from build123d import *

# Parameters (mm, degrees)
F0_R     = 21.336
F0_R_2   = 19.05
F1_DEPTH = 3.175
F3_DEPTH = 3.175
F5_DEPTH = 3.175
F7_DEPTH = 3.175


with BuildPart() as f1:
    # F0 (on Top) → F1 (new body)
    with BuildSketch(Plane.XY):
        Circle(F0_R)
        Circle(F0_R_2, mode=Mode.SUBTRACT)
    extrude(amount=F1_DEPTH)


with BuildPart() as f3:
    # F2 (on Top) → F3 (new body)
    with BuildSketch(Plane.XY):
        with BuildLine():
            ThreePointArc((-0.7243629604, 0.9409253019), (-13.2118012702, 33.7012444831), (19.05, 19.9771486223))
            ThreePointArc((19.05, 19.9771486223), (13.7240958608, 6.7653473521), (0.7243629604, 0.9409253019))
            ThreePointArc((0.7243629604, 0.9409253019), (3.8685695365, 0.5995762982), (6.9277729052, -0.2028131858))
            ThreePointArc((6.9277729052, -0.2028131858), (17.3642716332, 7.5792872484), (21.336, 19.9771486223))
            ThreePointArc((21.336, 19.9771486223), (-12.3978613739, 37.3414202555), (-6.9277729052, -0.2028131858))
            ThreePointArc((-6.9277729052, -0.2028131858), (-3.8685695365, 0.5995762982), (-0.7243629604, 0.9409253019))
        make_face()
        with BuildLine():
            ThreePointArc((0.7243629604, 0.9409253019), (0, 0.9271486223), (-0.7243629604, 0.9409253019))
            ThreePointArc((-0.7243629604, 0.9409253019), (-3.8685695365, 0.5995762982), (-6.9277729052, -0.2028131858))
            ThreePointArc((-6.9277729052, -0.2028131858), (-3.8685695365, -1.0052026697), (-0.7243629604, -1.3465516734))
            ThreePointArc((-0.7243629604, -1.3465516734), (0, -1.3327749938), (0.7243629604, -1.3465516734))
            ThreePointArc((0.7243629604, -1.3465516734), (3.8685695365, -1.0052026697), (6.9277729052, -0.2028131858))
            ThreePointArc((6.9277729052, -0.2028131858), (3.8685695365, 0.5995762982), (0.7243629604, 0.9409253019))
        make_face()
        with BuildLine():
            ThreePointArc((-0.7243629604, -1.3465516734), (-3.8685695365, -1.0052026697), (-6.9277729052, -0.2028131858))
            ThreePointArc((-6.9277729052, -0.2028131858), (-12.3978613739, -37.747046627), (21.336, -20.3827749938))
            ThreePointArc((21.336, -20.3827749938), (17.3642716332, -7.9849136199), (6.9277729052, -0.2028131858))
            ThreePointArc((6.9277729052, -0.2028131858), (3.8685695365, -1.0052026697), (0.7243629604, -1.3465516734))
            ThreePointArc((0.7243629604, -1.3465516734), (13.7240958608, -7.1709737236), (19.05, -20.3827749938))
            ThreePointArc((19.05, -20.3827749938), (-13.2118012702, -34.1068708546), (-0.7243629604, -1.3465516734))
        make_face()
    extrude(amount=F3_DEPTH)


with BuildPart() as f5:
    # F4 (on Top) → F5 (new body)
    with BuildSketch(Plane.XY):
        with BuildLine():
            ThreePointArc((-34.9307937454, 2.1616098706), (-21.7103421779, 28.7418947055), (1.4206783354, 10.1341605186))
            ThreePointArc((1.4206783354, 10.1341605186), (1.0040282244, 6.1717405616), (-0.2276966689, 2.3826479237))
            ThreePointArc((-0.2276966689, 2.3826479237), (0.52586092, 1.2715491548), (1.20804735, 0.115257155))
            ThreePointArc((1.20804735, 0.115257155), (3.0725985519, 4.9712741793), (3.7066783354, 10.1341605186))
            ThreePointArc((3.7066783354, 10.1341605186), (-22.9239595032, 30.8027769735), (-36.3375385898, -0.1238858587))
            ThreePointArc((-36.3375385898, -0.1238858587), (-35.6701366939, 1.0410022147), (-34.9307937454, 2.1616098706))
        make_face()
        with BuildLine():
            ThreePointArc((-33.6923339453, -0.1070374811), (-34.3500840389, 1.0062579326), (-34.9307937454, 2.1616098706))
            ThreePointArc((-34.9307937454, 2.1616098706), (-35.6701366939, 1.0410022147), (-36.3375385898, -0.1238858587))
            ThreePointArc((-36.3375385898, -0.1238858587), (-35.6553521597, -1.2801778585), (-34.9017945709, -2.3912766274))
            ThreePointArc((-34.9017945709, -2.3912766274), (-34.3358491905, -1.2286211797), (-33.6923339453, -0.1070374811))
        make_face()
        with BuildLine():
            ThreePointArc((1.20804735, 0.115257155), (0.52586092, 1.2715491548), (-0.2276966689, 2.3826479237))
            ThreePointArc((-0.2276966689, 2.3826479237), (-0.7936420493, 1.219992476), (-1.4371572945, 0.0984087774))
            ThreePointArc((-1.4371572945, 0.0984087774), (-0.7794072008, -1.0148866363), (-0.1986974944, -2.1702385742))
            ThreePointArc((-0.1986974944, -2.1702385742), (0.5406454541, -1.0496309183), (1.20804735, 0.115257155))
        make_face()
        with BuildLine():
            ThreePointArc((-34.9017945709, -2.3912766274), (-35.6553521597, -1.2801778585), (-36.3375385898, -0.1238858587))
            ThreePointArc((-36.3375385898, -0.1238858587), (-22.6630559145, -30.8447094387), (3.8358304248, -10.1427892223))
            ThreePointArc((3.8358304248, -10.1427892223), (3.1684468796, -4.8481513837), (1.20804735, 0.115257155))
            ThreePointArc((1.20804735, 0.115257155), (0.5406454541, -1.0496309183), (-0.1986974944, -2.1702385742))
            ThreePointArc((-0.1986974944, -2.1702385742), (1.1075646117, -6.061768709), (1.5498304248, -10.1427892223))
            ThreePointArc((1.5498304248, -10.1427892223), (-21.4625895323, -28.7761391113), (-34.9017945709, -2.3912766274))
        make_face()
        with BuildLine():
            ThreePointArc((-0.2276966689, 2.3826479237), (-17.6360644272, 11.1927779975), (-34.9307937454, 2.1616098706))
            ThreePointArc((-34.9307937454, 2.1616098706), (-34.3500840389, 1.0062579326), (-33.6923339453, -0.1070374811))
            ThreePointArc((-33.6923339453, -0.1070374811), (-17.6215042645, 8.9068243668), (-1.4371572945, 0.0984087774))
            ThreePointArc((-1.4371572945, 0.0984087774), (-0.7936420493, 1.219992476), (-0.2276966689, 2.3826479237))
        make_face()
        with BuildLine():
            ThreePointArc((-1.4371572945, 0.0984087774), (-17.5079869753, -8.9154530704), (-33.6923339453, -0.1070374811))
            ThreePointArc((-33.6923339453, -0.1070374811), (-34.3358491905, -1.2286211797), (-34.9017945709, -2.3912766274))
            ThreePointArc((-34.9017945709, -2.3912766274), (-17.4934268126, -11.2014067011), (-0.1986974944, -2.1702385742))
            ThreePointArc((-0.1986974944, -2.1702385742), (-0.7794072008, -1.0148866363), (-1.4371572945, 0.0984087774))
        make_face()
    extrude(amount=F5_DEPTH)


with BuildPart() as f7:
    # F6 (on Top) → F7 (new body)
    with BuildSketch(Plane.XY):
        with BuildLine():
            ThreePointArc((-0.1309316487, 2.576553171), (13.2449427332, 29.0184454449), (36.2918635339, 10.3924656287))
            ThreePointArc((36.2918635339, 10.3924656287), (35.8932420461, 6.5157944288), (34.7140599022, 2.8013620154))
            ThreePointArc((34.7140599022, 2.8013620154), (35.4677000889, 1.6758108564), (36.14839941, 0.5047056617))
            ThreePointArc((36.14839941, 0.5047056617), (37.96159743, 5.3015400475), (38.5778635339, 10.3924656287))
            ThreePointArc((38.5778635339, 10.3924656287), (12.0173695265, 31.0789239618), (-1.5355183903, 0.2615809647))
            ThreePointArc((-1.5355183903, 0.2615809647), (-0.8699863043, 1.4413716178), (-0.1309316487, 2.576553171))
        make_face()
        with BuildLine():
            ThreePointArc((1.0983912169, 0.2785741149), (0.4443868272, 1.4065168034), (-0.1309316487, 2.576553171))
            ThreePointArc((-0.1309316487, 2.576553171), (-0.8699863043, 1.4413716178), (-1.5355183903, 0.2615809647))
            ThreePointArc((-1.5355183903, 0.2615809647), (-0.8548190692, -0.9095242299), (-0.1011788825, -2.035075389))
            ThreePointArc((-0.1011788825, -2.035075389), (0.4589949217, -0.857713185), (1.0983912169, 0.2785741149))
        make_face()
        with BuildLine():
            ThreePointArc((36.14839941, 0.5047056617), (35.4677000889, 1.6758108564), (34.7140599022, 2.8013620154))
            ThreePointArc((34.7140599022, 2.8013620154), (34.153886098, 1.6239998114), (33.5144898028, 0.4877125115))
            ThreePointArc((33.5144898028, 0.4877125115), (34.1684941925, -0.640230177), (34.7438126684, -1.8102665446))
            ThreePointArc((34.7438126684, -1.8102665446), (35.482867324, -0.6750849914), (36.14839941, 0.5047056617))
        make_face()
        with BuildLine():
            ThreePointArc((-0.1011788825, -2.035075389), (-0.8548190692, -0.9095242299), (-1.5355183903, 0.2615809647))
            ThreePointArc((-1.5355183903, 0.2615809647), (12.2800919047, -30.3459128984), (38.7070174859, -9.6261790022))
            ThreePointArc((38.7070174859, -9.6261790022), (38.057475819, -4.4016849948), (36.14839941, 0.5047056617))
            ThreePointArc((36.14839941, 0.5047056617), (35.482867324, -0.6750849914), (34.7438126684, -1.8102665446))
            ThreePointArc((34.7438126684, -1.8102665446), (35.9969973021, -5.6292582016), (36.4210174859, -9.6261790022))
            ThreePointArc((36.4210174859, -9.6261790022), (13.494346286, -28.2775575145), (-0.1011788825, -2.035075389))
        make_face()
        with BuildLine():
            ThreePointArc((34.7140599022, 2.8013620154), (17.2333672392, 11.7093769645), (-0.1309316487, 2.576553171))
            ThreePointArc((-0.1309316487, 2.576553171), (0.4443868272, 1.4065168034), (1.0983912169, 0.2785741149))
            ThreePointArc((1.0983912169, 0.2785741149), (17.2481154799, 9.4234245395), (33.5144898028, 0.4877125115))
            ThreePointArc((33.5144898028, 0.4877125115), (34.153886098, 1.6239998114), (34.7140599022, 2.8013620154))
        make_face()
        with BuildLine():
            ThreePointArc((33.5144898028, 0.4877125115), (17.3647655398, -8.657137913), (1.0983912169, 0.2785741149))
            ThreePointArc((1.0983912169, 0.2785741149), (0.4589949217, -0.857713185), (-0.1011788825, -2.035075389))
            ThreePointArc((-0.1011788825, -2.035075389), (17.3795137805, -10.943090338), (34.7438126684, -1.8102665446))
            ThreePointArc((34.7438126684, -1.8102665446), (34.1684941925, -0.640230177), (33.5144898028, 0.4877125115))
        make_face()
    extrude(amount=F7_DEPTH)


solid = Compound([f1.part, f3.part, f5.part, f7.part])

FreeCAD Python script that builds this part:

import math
import FreeCAD as App
import Part
import Sketcher
Q = App.Units.Quantity

doc = App.newDocument("Part")
body = doc.addObject("PartDesign::Body", "Body")

# Sketch on XY plane
sketch1 = doc.addObject("Sketcher::SketchObject", "Sketch")
body.addObject(sketch1)
sketch1.AttachmentSupport = (doc.XY_Plane, [""])
sketch1.MapMode = "FlatFace"
sketch1.addGeometry(Part.Circle(App.Vector(0, 0, 0), App.Vector(0, 0, 1), 21), False)
sketch1.addGeometry(Part.Circle(App.Vector(0, 0, 0), App.Vector(0, 0, 1), 19), False)
sketch1.addConstraint(Sketcher.Constraint("Coincident", 0, 3, -1, 1))
sketch1.addConstraint(Sketcher.Constraint("Coincident", 1, 3, -1, 1))
sketch1.addConstraint(Sketcher.Constraint("Diameter", 1, Q("1.5 in")))
sketch1.addConstraint(Sketcher.Constraint("Diameter", 0, Q("1.68 in")))
pad1 = doc.addObject("PartDesign::Pad", "Pad")
body.addObject(pad1)
pad1.Profile = sketch1
pad1.Length = Q("0.125 in")
body2 = doc.addObject("PartDesign::Body", "Body001")

# Sketch on XY plane
sketch2 = doc.addObject("Sketcher::SketchObject", "Sketch001")
body2.addObject(sketch2)
sketch2.AttachmentSupport = (doc.getObject("XY_Plane001"), [""])
sketch2.MapMode = "FlatFace"
sketch2.addGeometry(Part.ArcOfCircle(Part.Circle(App.Vector(0, 20, 0), App.Vector(0, 0, 1), 21.3), math.radians(-71), math.radians(0)), False)
sketch2.addGeometry(Part.ArcOfCircle(Part.Circle(App.Vector(0, 20, 0), App.Vector(0, 0, 1), 21.3), math.radians(0), math.radians(251)), False)
sketch2.addGeometry(Part.ArcOfCircle(Part.Circle(App.Vector(0, -20.4, 0), App.Vector(0, 0, 1), 21.3), math.radians(109), math.radians(360)), False)
sketch2.addGeometry(Part.ArcOfCircle(Part.Circle(App.Vector(0, -20.4, 0), App.Vector(0, 0, 1), 21.3), math.radians(0), math.radians(71)), False)
sketch2.addGeometry(Part.ArcOfCircle(Part.Circle(App.Vector(0, 20, 0), App.Vector(0, 0, 1), 19.1), math.radians(0), math.radians(268)), False)
sketch2.addGeometry(Part.ArcOfCircle(Part.Circle(App.Vector(0, 20, 0), App.Vector(0, 0, 1), 19.1), math.radians(-88), math.radians(0)), False)
sketch2.addGeometry(Part.ArcOfCircle(Part.Circle(App.Vector(0, 20, 0), App.Vector(0, 0, 1), 19.1), math.radians(-92.18), math.radians(-87.82)), False)
sketch2.addGeometry(Part.ArcOfCircle(Part.Circle(App.Vector(0, -20.4, 0), App.Vector(0, 0, 1), 19.1), math.radians(87.82), math.radians(92.18)), False)
sketch2.addGeometry(Part.ArcOfCircle(Part.Circle(App.Vector(0, -20.4, 0), App.Vector(0, 0, 1), 19.1), math.radians(0), math.radians(88)), False)
sketch2.addGeometry(Part.ArcOfCircle(Part.Circle(App.Vector(0, -20.4, 0), App.Vector(0, 0, 1), 19.1), math.radians(92), math.radians(360)), False)
sketch2.addConstraint(Sketcher.Constraint("Tangent", 0, 2, 1, 1))
sketch2.addConstraint(Sketcher.Constraint("Coincident", 1, 2, 2, 1))
sketch2.addConstraint(Sketcher.Constraint("Tangent", 2, 2, 3, 1))
sketch2.addConstraint(Sketcher.Constraint("Coincident", 3, 2, 0, 1))
sketch2.addConstraint(Sketcher.Constraint("Tangent", 4, 1, 5, 2))
sketch2.addConstraint(Sketcher.Constraint("Tangent", 5, 1, 6, 2))
sketch2.addConstraint(Sketcher.Constraint("Tangent", 6, 1, 4, 2))
sketch2.addConstraint(Sketcher.Constraint("Tangent", 7, 1, 8, 2))
sketch2.addConstraint(Sketcher.Constraint("Tangent", 8, 1, 9, 2))
sketch2.addConstraint(Sketcher.Constraint("Tangent", 9, 1, 7, 2))
sketch2.addConstraint(Sketcher.Constraint("Coincident", 4, 3, 0, 3))
sketch2.addConstraint(Sketcher.Constraint("Coincident", 7, 3, 2, 3))
sketch2.addConstraint(Sketcher.Constraint("Equal", 0, 1))
sketch2.addConstraint(Sketcher.Constraint("Equal", 1, 2))
sketch2.addConstraint(Sketcher.Constraint("Equal", 2, 3))
sketch2.addConstraint(Sketcher.Constraint("Equal", 6, 7))
sketch2.addConstraint(Sketcher.Constraint("Symmetric", 1, 2, 3, 2, -2))
sketch2.addConstraint(Sketcher.Constraint("Horizontal", 6, 3, 0, 2))
sketch2.addConstraint(Sketcher.Constraint("Horizontal", 9, 3, 2, 2))
sketch2.addConstraint(Sketcher.Constraint("Horizontal", 0, 2, 4, 1))
sketch2.addConstraint(Sketcher.Constraint("Horizontal", 5, 1, 6, 1))
sketch2.addConstraint(Sketcher.Constraint("Horizontal", 2, 2, 8, 1))
sketch2.addConstraint(Sketcher.Constraint("Horizontal", 7, 1, 9, 1))
sketch2.addConstraint(Sketcher.Constraint("Vertical", 5, 1, 7, 1))
sketch2.addConstraint(Sketcher.Constraint("Radius", 0, Q("0.84 in")))
sketch2.addConstraint(Sketcher.Constraint("Radius", 4, Q("0.75 in")))
sketch2.addConstraint(Sketcher.Constraint("DistanceY", -1, 1, 0, 3, Q("19.977149 mm")))
sketch2.addConstraint(Sketcher.Constraint("DistanceY", 7, 1, -1, 1, Q("1.346552 mm")))
sketch2.addConstraint(Sketcher.Constraint("DistanceY", 2, 3, 1, 2, Q("20.179962 mm")))
pad2 = doc.addObject("PartDesign::Pad", "Pad001")
body2.addObject(pad2)
pad2.Profile = sketch2
pad2.Length = Q("0.125 in")
body3 = doc.addObject("PartDesign::Body", "Body002")

# Sketch on XY plane
sketch3 = doc.addObject("Sketcher::SketchObject", "Sketch002")
body3.addObject(sketch3)
sketch3.AttachmentSupport = (doc.getObject("XY_Plane002"), [""])
sketch3.MapMode = "FlatFace"
sketch3.addGeometry(Part.ArcOfCircle(Part.Circle(App.Vector(-18, 10, 0), App.Vector(0, 0, 1), 21), math.radians(-28), math.radians(0)), False)
sketch3.addGeometry(Part.ArcOfCircle(Part.Circle(App.Vector(-18, 10, 0), App.Vector(0, 0, 1), 21), math.radians(0), math.radians(209)), False)
sketch3.addGeometry(Part.ArcOfCircle(Part.Circle(App.Vector(-18, -10, 0), App.Vector(0, 0, 1), 21), math.radians(152), math.radians(360)), False)
sketch3.addGeometry(Part.ArcOfCircle(Part.Circle(App.Vector(-18, -10, 0), App.Vector(0, 0, 1), 21), math.radians(0), math.radians(29)), False)
sketch3.addGeometry(Part.ArcOfCircle(Part.Circle(App.Vector(-18, 10, 0), App.Vector(0, 0, 1), 19), math.radians(0), math.radians(205)), False)
sketch3.addGeometry(Part.ArcOfCircle(Part.Circle(App.Vector(-18, 10, 0), App.Vector(0, 0, 1), 19), math.radians(-24), math.radians(0)), False)
sketch3.addGeometry(Part.ArcOfCircle(Part.Circle(App.Vector(-18, -10, 0), App.Vector(0, 0, 1), 21), math.radians(36), math.radians(145)), False)
sketch3.addGeometry(Part.ArcOfCircle(Part.Circle(App.Vector(-18, -10, 0), App.Vector(0, 0, 1), 19), math.radians(0), math.radians(25)), False)
sketch3.addGeometry(Part.ArcOfCircle(Part.Circle(App.Vector(-18, -10, 0), App.Vector(0, 0, 1), 19), math.radians(156), math.radians(360)), False)
sketch3.addGeometry(Part.ArcOfCircle(Part.Circle(App.Vector(-18, 10, 0), App.Vector(0, 0, 1), 21), math.radians(-144), math.radians(-35)), False)
sketch3.addGeometry(Part.ArcOfCircle(Part.Circle(App.Vector(-18, -10, 0), App.Vector(0, 0, 1), 19), math.radians(33), math.radians(148)), False)
sketch3.addGeometry(Part.ArcOfCircle(Part.Circle(App.Vector(-18, 10, 0), App.Vector(0, 0, 1), 19), math.radians(-147), math.radians(-32)), False)
sketch3.addConstraint(Sketcher.Constraint("Tangent", 0, 2, 1, 1))
sketch3.addConstraint(Sketcher.Constraint("Coincident", 1, 2, 2, 1))
sketch3.addConstraint(Sketcher.Constraint("Tangent", 2, 2, 3, 1))
sketch3.addConstraint(Sketcher.Constraint("Coincident", 3, 2, 0, 1))
sketch3.addConstraint(Sketcher.Constraint("Tangent", 4, 1, 5, 2))
sketch3.addConstraint(Sketcher.Constraint("Coincident", 5, 1, 6, 1))
sketch3.addConstraint(Sketcher.Constraint("Coincident", 6, 2, 4, 2))
sketch3.addConstraint(Sketcher.Constraint("Tangent", 7, 1, 8, 2))
sketch3.addConstraint(Sketcher.Constraint("Coincident", 8, 1, 9, 1))
sketch3.addConstraint(Sketcher.Constraint("Coincident", 9, 2, 7, 2))
sketch3.addConstraint(Sketcher.Constraint("Coincident", 10, 1, 11, 2))
sketch3.addConstraint(Sketcher.Constraint("Coincident", 11, 1, 10, 2))
sketch3.addConstraint(Sketcher.Constraint("Coincident", 4, 3, 0, 3))
sketch3.addConstraint(Sketcher.Constraint("Coincident", 6, 3, 2, 3))
sketch3.addConstraint(Sketcher.Constraint("Coincident", 7, 3, 2, 3))
sketch3.addConstraint(Sketcher.Constraint("Coincident", 9, 3, 0, 3))
sketch3.addConstraint(Sketcher.Constraint("Coincident", 10, 3, 2, 3))
sketch3.addConstraint(Sketcher.Constraint("Coincident", 11, 3, 0, 3))
sketch3.addConstraint(Sketcher.Constraint("Equal", 0, 1))
sketch3.addConstraint(Sketcher.Constraint("Equal", 1, 2))
sketch3.addConstraint(Sketcher.Constraint("Equal", 2, 3))
sketch3.addConstraint(Sketcher.Constraint("Equal", 4, 5))
sketch3.addConstraint(Sketcher.Constraint("Equal", 3, 6))
sketch3.addConstraint(Sketcher.Constraint("Equal", 5, 7))
sketch3.addConstraint(Sketcher.Constraint("Equal", 7, 8))
sketch3.addConstraint(Sketcher.Constraint("Equal", 6, 9))
sketch3.addConstraint(Sketcher.Constraint("Equal", 8, 10))
sketch3.addConstraint(Sketcher.Constraint("Equal", 10, 11))
sketch3.addConstraint(Sketcher.Constraint("Horizontal", 11, 3, 0, 2))
sketch3.addConstraint(Sketcher.Constraint("Horizontal", 10, 3, 2, 2))
sketch3.addConstraint(Sketcher.Constraint("Horizontal", 0, 2, 4, 1))
sketch3.addConstraint(Sketcher.Constraint("Horizontal", 2, 2, 7, 1))
sketch3.addConstraint(Sketcher.Constraint("Radius", 0, Q("0.84 in")))
sketch3.addConstraint(Sketcher.Constraint("Radius", 4, Q("0.75 in")))
sketch3.addConstraint(Sketcher.Constraint("DistanceX", 6, 2, 8, 1, Q("0.028999 mm")))
sketch3.addConstraint(Sketcher.Constraint("DistanceY", 9, 2, 4, 1, Q("12.304399 mm")))
sketch3.addConstraint(Sketcher.Constraint("DistanceX", 0, 3, -1, 1, Q("17.629322 mm")))
sketch3.addConstraint(Sketcher.Constraint("DistanceY", -1, 1, 0, 3, Q("10.134161 mm")))
pad3 = doc.addObject("PartDesign::Pad", "Pad002")
body3.addObject(pad3)
pad3.Profile = sketch3
pad3.Length = Q("0.125 in")
body4 = doc.addObject("PartDesign::Body", "Body003")

# Sketch on XY plane
sketch4 = doc.addObject("Sketcher::SketchObject", "Sketch003")
body4.addObject(sketch4)
sketch4.AttachmentSupport = (doc.getObject("XY_Plane003"), [""])
sketch4.MapMode = "FlatFace"
sketch4.addGeometry(Part.ArcOfCircle(Part.Circle(App.Vector(17, 10, 0), App.Vector(0, 0, 1), 21), math.radians(-28), math.radians(0)), False)
sketch4.addGeometry(Part.ArcOfCircle(Part.Circle(App.Vector(17, 10, 0), App.Vector(0, 0, 1), 21), math.radians(0), math.radians(208)), False)
sketch4.addGeometry(Part.ArcOfCircle(Part.Circle(App.Vector(17, -10, 0), App.Vector(0, 0, 1), 21), math.radians(152), math.radians(360)), False)
sketch4.addGeometry(Part.ArcOfCircle(Part.Circle(App.Vector(17, -10, 0), App.Vector(0, 0, 1), 21), math.radians(0), math.radians(28)), False)
sketch4.addGeometry(Part.ArcOfCircle(Part.Circle(App.Vector(17, 10, 0), App.Vector(0, 0, 1), 19), math.radians(0), math.radians(204)), False)
sketch4.addGeometry(Part.ArcOfCircle(Part.Circle(App.Vector(17, 10, 0), App.Vector(0, 0, 1), 19), math.radians(-23), math.radians(0)), False)
sketch4.addGeometry(Part.ArcOfCircle(Part.Circle(App.Vector(17, -10, 0), App.Vector(0, 0, 1), 21), math.radians(36), math.radians(145)), False)
sketch4.addGeometry(Part.ArcOfCircle(Part.Circle(App.Vector(17, -10, 0), App.Vector(0, 0, 1), 19), math.radians(0), math.radians(24)), False)
sketch4.addGeometry(Part.ArcOfCircle(Part.Circle(App.Vector(17, -10, 0), App.Vector(0, 0, 1), 19), math.radians(157), math.radians(360)), False)
sketch4.addGeometry(Part.ArcOfCircle(Part.Circle(App.Vector(17, 10, 0), App.Vector(0, 0, 1), 21), math.radians(-144), math.radians(-35)), False)
sketch4.addGeometry(Part.ArcOfCircle(Part.Circle(App.Vector(17, -10, 0), App.Vector(0, 0, 1), 19), math.radians(32), math.radians(149)), False)
sketch4.addGeometry(Part.ArcOfCircle(Part.Circle(App.Vector(17, 10, 0), App.Vector(0, 0, 1), 19), math.radians(-148), math.radians(-31)), False)
sketch4.addConstraint(Sketcher.Constraint("Tangent", 0, 2, 1, 1))
sketch4.addConstraint(Sketcher.Constraint("Coincident", 1, 2, 2, 1))
sketch4.addConstraint(Sketcher.Constraint("Tangent", 2, 2, 3, 1))
sketch4.addConstraint(Sketcher.Constraint("Coincident", 3, 2, 0, 1))
sketch4.addConstraint(Sketcher.Constraint("Tangent", 4, 1, 5, 2))
sketch4.addConstraint(Sketcher.Constraint("Coincident", 5, 1, 6, 1))
sketch4.addConstraint(Sketcher.Constraint("Coincident", 6, 2, 4, 2))
sketch4.addConstraint(Sketcher.Constraint("Tangent", 7, 1, 8, 2))
sketch4.addConstraint(Sketcher.Constraint("Coincident", 8, 1, 9, 1))
sketch4.addConstraint(Sketcher.Constraint("Coincident", 9, 2, 7, 2))
sketch4.addConstraint(Sketcher.Constraint("Coincident", 10, 1, 11, 2))
sketch4.addConstraint(Sketcher.Constraint("Coincident", 11, 1, 10, 2))
sketch4.addConstraint(Sketcher.Constraint("Coincident", 4, 3, 0, 3))
sketch4.addConstraint(Sketcher.Constraint("Coincident", 6, 3, 2, 3))
sketch4.addConstraint(Sketcher.Constraint("Coincident", 7, 3, 2, 3))
sketch4.addConstraint(Sketcher.Constraint("Coincident", 9, 3, 0, 3))
sketch4.addConstraint(Sketcher.Constraint("Coincident", 10, 3, 2, 3))
sketch4.addConstraint(Sketcher.Constraint("Coincident", 11, 3, 0, 3))
sketch4.addConstraint(Sketcher.Constraint("Equal", 0, 1))
sketch4.addConstraint(Sketcher.Constraint("Equal", 1, 2))
sketch4.addConstraint(Sketcher.Constraint("Equal", 2, 3))
sketch4.addConstraint(Sketcher.Constraint("Equal", 4, 5))
sketch4.addConstraint(Sketcher.Constraint("Equal", 3, 6))
sketch4.addConstraint(Sketcher.Constraint("Equal", 5, 7))
sketch4.addConstraint(Sketcher.Constraint("Equal", 7, 8))
sketch4.addConstraint(Sketcher.Constraint("Equal", 6, 9))
sketch4.addConstraint(Sketcher.Constraint("Equal", 8, 10))
sketch4.addConstraint(Sketcher.Constraint("Equal", 10, 11))
sketch4.addConstraint(Sketcher.Constraint("Horizontal", 11, 3, 0, 2))
sketch4.addConstraint(Sketcher.Constraint("Horizontal", 10, 3, 2, 2))
sketch4.addConstraint(Sketcher.Constraint("Horizontal", 0, 2, 4, 1))
sketch4.addConstraint(Sketcher.Constraint("Horizontal", 2, 2, 7, 1))
sketch4.addConstraint(Sketcher.Constraint("Radius", 0, Q("0.84 in")))
sketch4.addConstraint(Sketcher.Constraint("Radius", 4, Q("0.75 in")))
sketch4.addConstraint(Sketcher.Constraint("DistanceX", -1, 1, 3, 2, Q("36.148399 mm")))
sketch4.addConstraint(Sketcher.Constraint("DistanceY", 2, 3, -1, 1, Q("9.626179 mm")))
sketch4.addConstraint(Sketcher.Constraint("DistanceX", 1, 2, -1, 1, Q("1.535518 mm")))
sketch4.addConstraint(Sketcher.Constraint("DistanceY", -1, 1, 1, 2, Q("0.261581 mm")))
pad4 = doc.addObject("PartDesign::Pad", "Pad003")
body4.addObject(pad4)
pad4.Profile = sketch4
pad4.Length = Q("0.125 in")

doc.recompute()
